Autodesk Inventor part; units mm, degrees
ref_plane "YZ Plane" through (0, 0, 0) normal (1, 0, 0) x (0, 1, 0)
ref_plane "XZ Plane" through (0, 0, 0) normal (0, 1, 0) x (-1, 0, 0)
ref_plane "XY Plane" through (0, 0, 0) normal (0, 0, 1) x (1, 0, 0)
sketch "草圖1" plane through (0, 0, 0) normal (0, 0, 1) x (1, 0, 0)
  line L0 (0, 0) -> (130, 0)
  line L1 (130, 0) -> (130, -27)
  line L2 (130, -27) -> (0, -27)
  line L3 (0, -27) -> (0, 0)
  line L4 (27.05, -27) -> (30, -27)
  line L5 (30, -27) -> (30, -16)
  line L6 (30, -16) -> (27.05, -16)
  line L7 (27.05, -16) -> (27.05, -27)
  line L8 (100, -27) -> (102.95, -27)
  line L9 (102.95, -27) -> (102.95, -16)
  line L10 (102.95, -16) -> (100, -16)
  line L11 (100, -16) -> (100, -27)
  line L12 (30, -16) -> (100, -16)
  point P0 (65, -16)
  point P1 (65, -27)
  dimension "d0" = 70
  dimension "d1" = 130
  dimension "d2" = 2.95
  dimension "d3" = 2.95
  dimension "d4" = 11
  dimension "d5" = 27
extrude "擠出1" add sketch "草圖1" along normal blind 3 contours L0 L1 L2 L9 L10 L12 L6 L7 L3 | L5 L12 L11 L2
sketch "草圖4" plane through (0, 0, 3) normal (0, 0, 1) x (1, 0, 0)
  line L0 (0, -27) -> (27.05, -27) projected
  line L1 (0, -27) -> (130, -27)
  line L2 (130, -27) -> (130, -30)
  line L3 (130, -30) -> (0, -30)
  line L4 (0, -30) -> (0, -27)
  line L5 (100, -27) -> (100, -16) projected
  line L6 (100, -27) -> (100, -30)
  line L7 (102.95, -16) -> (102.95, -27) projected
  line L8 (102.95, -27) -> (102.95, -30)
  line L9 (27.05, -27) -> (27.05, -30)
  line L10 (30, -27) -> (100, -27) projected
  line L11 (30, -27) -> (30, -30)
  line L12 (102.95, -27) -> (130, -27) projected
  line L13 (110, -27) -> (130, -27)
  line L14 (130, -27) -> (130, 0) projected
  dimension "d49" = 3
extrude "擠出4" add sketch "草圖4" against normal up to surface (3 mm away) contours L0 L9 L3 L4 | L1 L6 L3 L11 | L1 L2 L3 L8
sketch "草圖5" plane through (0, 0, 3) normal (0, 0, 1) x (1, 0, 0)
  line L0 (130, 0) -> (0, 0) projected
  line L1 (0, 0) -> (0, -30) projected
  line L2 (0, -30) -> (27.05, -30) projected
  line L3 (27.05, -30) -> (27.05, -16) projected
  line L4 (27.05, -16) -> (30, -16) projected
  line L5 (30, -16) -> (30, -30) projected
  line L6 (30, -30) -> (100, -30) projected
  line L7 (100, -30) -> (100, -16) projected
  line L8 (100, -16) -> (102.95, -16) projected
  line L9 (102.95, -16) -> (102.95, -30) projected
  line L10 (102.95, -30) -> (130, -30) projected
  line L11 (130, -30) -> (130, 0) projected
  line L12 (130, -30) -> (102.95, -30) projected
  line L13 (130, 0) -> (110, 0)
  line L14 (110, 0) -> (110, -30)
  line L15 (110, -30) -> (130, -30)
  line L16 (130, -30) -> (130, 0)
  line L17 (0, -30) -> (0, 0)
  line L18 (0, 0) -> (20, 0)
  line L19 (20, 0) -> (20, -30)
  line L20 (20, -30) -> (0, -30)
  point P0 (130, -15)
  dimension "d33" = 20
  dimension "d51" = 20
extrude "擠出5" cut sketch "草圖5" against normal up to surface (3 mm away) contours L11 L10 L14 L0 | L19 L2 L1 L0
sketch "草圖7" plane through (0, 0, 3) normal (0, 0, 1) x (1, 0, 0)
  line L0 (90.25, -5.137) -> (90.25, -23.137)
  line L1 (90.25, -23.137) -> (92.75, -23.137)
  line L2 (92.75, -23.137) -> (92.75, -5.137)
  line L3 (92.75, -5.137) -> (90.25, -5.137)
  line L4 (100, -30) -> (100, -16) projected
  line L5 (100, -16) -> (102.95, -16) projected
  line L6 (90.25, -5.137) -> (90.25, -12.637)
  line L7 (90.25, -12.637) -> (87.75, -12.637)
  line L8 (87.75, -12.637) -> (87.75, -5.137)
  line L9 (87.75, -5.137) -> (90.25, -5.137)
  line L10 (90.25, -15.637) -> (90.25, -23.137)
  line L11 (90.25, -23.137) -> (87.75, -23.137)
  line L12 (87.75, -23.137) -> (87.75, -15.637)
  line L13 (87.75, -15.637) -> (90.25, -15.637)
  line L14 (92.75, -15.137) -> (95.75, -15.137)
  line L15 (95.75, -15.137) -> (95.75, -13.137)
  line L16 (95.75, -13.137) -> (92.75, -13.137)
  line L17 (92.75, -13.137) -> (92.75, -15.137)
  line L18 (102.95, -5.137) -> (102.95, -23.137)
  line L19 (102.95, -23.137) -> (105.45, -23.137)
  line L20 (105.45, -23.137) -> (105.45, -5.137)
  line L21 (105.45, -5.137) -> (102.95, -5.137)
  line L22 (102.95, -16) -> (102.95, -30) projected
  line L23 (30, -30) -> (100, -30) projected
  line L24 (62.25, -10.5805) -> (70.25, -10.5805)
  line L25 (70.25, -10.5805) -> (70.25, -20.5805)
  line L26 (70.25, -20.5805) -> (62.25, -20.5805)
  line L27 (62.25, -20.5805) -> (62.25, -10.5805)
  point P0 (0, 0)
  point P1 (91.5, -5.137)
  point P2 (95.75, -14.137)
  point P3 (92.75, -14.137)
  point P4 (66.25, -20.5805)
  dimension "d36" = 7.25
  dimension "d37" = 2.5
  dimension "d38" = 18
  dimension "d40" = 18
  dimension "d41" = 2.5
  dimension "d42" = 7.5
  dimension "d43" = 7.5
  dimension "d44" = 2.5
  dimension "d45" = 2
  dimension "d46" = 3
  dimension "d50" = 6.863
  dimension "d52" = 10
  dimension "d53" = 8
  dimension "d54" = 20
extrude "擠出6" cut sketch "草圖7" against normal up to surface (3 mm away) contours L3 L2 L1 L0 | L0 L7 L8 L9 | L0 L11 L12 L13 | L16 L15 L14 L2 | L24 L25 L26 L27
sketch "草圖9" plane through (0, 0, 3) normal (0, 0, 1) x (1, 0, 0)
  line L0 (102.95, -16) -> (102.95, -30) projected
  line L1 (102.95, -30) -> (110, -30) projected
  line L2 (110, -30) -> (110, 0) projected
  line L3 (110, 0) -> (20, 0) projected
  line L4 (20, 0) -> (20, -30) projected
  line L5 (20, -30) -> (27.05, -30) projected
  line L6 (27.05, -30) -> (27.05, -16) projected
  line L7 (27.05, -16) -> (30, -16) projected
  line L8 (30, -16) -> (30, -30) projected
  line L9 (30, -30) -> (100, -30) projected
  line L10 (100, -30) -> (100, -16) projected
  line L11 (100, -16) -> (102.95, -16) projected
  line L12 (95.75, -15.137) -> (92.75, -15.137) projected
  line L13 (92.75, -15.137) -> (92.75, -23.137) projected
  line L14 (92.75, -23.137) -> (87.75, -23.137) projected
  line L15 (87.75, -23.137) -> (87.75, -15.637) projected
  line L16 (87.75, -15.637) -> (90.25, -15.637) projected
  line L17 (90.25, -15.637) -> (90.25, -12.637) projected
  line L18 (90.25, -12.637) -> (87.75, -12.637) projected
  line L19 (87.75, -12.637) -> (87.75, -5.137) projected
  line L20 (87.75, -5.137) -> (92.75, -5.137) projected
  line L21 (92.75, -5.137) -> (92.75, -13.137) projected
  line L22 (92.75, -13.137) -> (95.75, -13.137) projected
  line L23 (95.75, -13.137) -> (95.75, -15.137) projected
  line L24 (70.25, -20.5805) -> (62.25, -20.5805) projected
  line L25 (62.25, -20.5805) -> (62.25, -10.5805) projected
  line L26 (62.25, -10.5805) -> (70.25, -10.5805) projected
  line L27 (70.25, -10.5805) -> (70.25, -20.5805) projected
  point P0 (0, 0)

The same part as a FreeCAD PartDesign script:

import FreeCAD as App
import Part
import Sketcher

V = App.Vector


def add_polygon(sketch, points):
    """Adds a closed chain of lines whose ends are joined by coincident constraints."""
    first, n = sketch.GeometryCount, len(points)
    for a, b in zip(points, points[1:] + points[:1]):
        sketch.addGeometry(Part.LineSegment(App.Vector(*a, 0), App.Vector(*b, 0)), False)
    for i in range(n):
        sketch.addConstraint(Sketcher.Constraint("Coincident", first + i, 2, first + (i + 1) % n, 1))

doc = App.newDocument("Part")
body = doc.addObject("PartDesign::Body", "Body")

# Sketch on XY plane
sketch1 = body.newObject("Sketcher::SketchObject", "Sketch")
sketch1.AttachmentSupport = (doc.getObject("XY_Plane"), [""])
sketch1.MapMode = "FlatFace"
add_polygon(sketch1, [(130, 0), (0, 0), (0, -27), (27.1, -27), (27.1, -16), (30, -16), (30, -27), (100, -27), (100, -16), (103, -16), (103, -27), (130, -27)])  # lines 0-11
sketch1.addConstraint([
    Sketcher.Constraint("Horizontal", 0),
    Sketcher.Constraint("Vertical", 1),
    Sketcher.Constraint("Horizontal", 2),
    Sketcher.Constraint("Vertical", 3),
    Sketcher.Constraint("Horizontal", 4),
    Sketcher.Constraint("Vertical", 5),
    Sketcher.Constraint("Horizontal", 6),
    Sketcher.Constraint("Vertical", 7),
    Sketcher.Constraint("Horizontal", 8),
    Sketcher.Constraint("Vertical", 9),
    Sketcher.Constraint("Horizontal", 10),
    Sketcher.Constraint("Vertical", 11),
    Sketcher.Constraint("Coincident", 0, 2, -1, 1),
    Sketcher.Constraint("Horizontal", 2, 2, 5, 2),
    Sketcher.Constraint("Horizontal", 4, 2, 7, 2),
    Sketcher.Constraint("Horizontal", 6, 2, 9, 2),
    Sketcher.Constraint("Equal", 4, 8),
    Sketcher.Constraint("Equal", 2, 10),
    Sketcher.Constraint("DistanceX", 0, 2, 0, 1, 130.0),
    Sketcher.Constraint("DistanceX", 6, 1, 6, 2, 70.0),
    Sketcher.Constraint("DistanceY", 1, 2, 1, 1, 27.0),
    Sketcher.Constraint("DistanceY", 3, 1, 3, 2, 11.0),
    Sketcher.Constraint("DistanceX", 4, 1, 4, 2, 2.95),
])
pad1 = body.newObject("PartDesign::Pad", "Pad")
pad1.Profile = sketch1
pad1.Length = 3

# Sketch on XY plane
sketch2 = body.newObject("Sketcher::SketchObject", "Sketch001")
sketch2.AttachmentSupport = (doc.getObject("XY_Plane"), [""])
sketch2.MapMode = "FlatFace"
sketch2.AttachmentOffset = App.Placement(V(0, 0, 3), App.Rotation())
add_polygon(sketch2, [(27.1, -27), (0, -27), (0, -30), (27.1, -30)])  # lines 0-3
add_polygon(sketch2, [(100, -27), (30, -27), (30, -30), (100, -30)])  # lines 4-7
add_polygon(sketch2, [(130, -27), (103, -27), (103, -30), (130, -30)])  # lines 8-11
sketch2.addConstraint([
    Sketcher.Constraint("Horizontal", 0),
    Sketcher.Constraint("Vertical", 1),
    Sketcher.Constraint("Horizontal", 2),
    Sketcher.Constraint("Vertical", 3),
    Sketcher.Constraint("Horizontal", 4),
    Sketcher.Constraint("Vertical", 5),
    Sketcher.Constraint("Horizontal", 6),
    Sketcher.Constraint("Vertical", 7),
    Sketcher.Constraint("Horizontal", 8),
    Sketcher.Constraint("Vertical", 9),
    Sketcher.Constraint("Horizontal", 10),
    Sketcher.Constraint("Vertical", 11),
    Sketcher.Constraint("PointOnObject", 0, 2, -2),
    Sketcher.Constraint("Horizontal", 3, 2, 4, 2),
    Sketcher.Constraint("Horizontal", 2, 2, 5, 2),
    Sketcher.Constraint("Horizontal", 7, 2, 8, 2),
    Sketcher.Constraint("Horizontal", 6, 2, 9, 2),
    Sketcher.Constraint("Equal", 2, 8),
    Sketcher.Constraint("DistanceY", 1, 2, 1, 1, 3.0),
    Sketcher.Constraint("DistanceX", 4, 2, 4, 1, 70.0),
    Sketcher.Constraint("DistanceY", 0, 2, -1, 1, 27.0),
    Sketcher.Constraint("DistanceX", -1, 1, 4, 2, 30.0),
    Sketcher.Constraint("DistanceX", -1, 1, 10, 2, 130.0),
    Sketcher.Constraint("DistanceX", 0, 2, 0, 1, 27.05),
])
pad2 = body.newObject("PartDesign::Pad", "Pad001")
pad2.Profile = sketch2
pad2.Length = 3
pad2.Reversed = True

# Sketch on XY plane
sketch3 = body.newObject("Sketcher::SketchObject", "Sketch002")
sketch3.AttachmentSupport = (doc.getObject("XY_Plane"), [""])
sketch3.MapMode = "FlatFace"
sketch3.AttachmentOffset = App.Placement(V(0, 0, 3), App.Rotation())
add_polygon(sketch3, [(130, -30), (130, 0), (110, 0), (110, -30)])  # lines 0-3
add_polygon(sketch3, [(20, -30), (20, 0), (0, 0), (0, -30)])  # lines 4-7
sketch3.addConstraint([
    Sketcher.Constraint("Vertical", 0),
    Sketcher.Constraint("Horizontal", 1),
    Sketcher.Constraint("Vertical", 2),
    Sketcher.Constraint("Horizontal", 3),
    Sketcher.Constraint("Vertical", 4),
    Sketcher.Constraint("Horizontal", 5),
    Sketcher.Constraint("Vertical", 6),
    Sketcher.Constraint("Horizontal", 7),
    Sketcher.Constraint("Coincident", 5, 2, -1, 1),
    Sketcher.Constraint("PointOnObject", 0, 2, -1),
    Sketcher.Constraint("Horizontal", 3, 2, 6, 2),
    Sketcher.Constraint("Equal", 3, 5),
    Sketcher.Constraint("DistanceX", 1, 2, 1, 1, 20.0),
    Sketcher.Constraint("DistanceY", 0, 1, 0, 2, 30.0),
    Sketcher.Constraint("DistanceX", -1, 1, 0, 2, 130.0),
])
pocket1 = body.newObject("PartDesign::Pocket", "Pocket")
pocket1.Profile = sketch3
pocket1.Length = 3

# Sketch on XY plane
sketch4 = body.newObject("Sketcher::SketchObject", "Sketch003")
sketch4.AttachmentSupport = (doc.getObject("XY_Plane"), [""])
sketch4.MapMode = "FlatFace"
sketch4.AttachmentOffset = App.Placement(V(0, 0, 3), App.Rotation())
add_polygon(sketch4, [(92.8, -5.1), (87.8, -5.1), (87.8, -12.6), (90.2, -12.6), (90.2, -15.6), (87.8, -15.6), (87.8, -23.1), (92.8, -23.1), (92.8, -15.1), (95.8, -15.1), (95.8, -13.1), (92.8, -13.1)])  # lines 0-11
add_polygon(sketch4, [(70.2, -10.6), (62.2, -10.6), (62.2, -20.6), (70.2, -20.6)])  # lines 12-15
sketch4.addConstraint([
    Sketcher.Constraint("Horizontal", 0),
    Sketcher.Constraint("Vertical", 1),
    Sketcher.Constraint("Horizontal", 2),
    Sketcher.Constraint("Vertical", 3),
    Sketcher.Constraint("Horizontal", 4),
    Sketcher.Constraint("Vertical", 5),
    Sketcher.Constraint("Horizontal", 6),
    Sketcher.Constraint("Vertical", 7),
    Sketcher.Constraint("Horizontal", 8),
    Sketcher.Constraint("Vertical", 9),
    Sketcher.Constraint("Horizontal", 10),
    Sketcher.Constraint("Vertical", 11),
    Sketcher.Constraint("Horizontal", 12),
    Sketcher.Constraint("Vertical", 13),
    Sketcher.Constraint("Horizontal", 14),
    Sketcher.Constraint("Vertical", 15),
    Sketcher.Constraint("Vertical", 1, 2, 4, 2),
    Sketcher.Constraint("Vertical", 7, 2, 10, 2),
    Sketcher.Constraint("Equal", 10, 3),
    Sketcher.Constraint("Equal", 1, 5),
    Sketcher.Constraint("Equal", 14, 7),
    Sketcher.Constraint("Equal", 7, 11),
    Sketcher.Constraint("DistanceX", 8, 1, 8, 2, 3.0),
    Sketcher.Constraint("DistanceX", 12, 2, 12, 1, 8.0),
    Sketcher.Constraint("DistanceY", 9, 1, 9, 2, 2.0),
    Sketcher.Constraint("DistanceY", 13, 2, 13, 1, 10.0),
    Sketcher.Constraint("DistanceX", 2, 1, 2, 2, 2.5),
    Sketcher.Constraint("DistanceX", 4, 2, 8, 2, 8.0),
    Sketcher.Constraint("DistanceX", 12, 2, 2, 2, 28.0),
    Sketcher.Constraint("DistanceX", -1, 1, 0, 2, 87.75),
    Sketcher.Constraint("DistanceY", 0, 2, -1, 1, 5.137),
    Sketcher.Constraint("DistanceY", 12, 2, -1, 1, 10.5805),
])
pocket2 = body.newObject("PartDesign::Pocket", "Pocket001")
pocket2.Profile = sketch4
pocket2.Length = 3

doc.recompute()
